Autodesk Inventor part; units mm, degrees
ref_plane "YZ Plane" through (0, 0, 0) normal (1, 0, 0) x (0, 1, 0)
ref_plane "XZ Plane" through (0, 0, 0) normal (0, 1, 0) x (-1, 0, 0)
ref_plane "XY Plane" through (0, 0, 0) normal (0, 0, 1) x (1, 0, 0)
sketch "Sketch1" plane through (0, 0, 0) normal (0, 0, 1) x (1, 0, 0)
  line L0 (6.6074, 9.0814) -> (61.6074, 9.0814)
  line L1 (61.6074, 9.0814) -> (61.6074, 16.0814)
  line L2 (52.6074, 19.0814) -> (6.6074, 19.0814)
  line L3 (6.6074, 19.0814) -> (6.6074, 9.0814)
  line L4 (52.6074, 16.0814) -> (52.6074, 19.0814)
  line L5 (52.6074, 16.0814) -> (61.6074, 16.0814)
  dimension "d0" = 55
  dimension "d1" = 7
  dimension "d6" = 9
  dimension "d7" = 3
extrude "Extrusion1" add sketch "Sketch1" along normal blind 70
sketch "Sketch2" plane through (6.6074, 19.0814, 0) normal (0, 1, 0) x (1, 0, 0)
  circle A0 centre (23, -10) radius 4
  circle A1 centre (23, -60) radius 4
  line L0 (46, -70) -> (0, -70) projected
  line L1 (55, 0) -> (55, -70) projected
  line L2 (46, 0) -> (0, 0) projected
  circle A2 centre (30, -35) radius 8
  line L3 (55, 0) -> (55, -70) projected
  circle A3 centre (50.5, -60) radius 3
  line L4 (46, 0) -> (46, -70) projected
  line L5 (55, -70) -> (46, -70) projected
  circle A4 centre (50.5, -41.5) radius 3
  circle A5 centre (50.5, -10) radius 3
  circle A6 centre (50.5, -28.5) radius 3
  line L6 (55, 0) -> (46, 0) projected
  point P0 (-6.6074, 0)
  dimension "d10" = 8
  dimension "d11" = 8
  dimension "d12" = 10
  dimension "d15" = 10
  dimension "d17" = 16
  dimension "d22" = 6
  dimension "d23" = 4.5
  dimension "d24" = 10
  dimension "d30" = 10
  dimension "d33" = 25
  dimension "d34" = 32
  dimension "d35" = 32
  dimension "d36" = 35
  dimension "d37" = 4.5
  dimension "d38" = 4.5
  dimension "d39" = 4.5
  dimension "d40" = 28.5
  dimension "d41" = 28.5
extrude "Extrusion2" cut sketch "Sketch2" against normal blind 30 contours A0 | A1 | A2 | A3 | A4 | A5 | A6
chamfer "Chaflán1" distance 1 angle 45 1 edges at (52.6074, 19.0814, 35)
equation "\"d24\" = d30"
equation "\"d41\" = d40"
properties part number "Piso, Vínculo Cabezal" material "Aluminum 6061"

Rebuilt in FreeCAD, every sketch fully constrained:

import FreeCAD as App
import Part
import Sketcher
Q = App.Units.Quantity


def edges_at(feature, points):
    """Names of the edges that pass closest to the given points."""
    edges = feature.Shape.Edges
    near = lambda p: min(range(len(edges)), key=lambda i: edges[i].distToShape(Part.Vertex(*p))[0])
    return sorted({f"Edge{near(p) + 1}" for p in points})

doc = App.newDocument("Part")
body = doc.addObject("PartDesign::Body", "Body")

# Sketch on XY plane
sketch1 = body.newObject("Sketcher::SketchObject", "Sketch")
sketch1.AttachmentSupport = (doc.getObject("XY_Plane"), [""])
sketch1.MapMode = "FlatFace"
sketch1.addGeometry([
    Part.LineSegment(App.Vector(6.6, 19.1, 0), App.Vector(6.6, 9.1, 0)),  # 0
    Part.LineSegment(App.Vector(6.6, 9.1, 0), App.Vector(61.6, 9.1, 0)),  # 1
    Part.LineSegment(App.Vector(61.6, 9.1, 0), App.Vector(61.6, 16.1, 0)),  # 2
    Part.LineSegment(App.Vector(61.6, 16.1, 0), App.Vector(52.6, 16.1, 0)),  # 3
    Part.LineSegment(App.Vector(52.6, 16.1, 0), App.Vector(52.6, 19.1, 0)),  # 4
    Part.LineSegment(App.Vector(52.6, 19.1, 0), App.Vector(6.6, 19.1, 0)),  # 5
], False)
sketch1.addConstraint([
    Sketcher.Constraint("Coincident", 0, 2, 1, 1),
    Sketcher.Constraint("Coincident", 1, 2, 2, 1),
    Sketcher.Constraint("Coincident", 2, 2, 3, 1),
    Sketcher.Constraint("Coincident", 3, 2, 4, 1),
    Sketcher.Constraint("Coincident", 4, 2, 5, 1),
    Sketcher.Constraint("Coincident", 5, 2, 0, 1),
    Sketcher.Constraint("Vertical", 0),
    Sketcher.Constraint("Horizontal", 1),
    Sketcher.Constraint("Vertical", 2),
    Sketcher.Constraint("Horizontal", 3),
    Sketcher.Constraint("Vertical", 4),
    Sketcher.Constraint("Horizontal", 5),
    Sketcher.Constraint("DistanceX", 1, 1, 1, 2, Q("55 mm")),
    Sketcher.Constraint("DistanceX", 3, 2, 3, 1, Q("9 mm")),
    Sketcher.Constraint("DistanceY", 2, 1, 2, 2, Q("7 mm")),
    Sketcher.Constraint("DistanceY", 4, 1, 4, 2, Q("3 mm")),
    Sketcher.Constraint("DistanceX", -1, 1, 0, 2, Q("6.6074 mm")),
    Sketcher.Constraint("DistanceY", -1, 1, 0, 2, Q("9.0814 mm")),
])
pad1 = body.newObject("PartDesign::Pad", "Pad")
pad1.Profile = sketch1
pad1.Length = 70

# Sketch on XZ plane
sketch2 = body.newObject("Sketcher::SketchObject", "Sketch001")
sketch2.AttachmentSupport = (doc.getObject("XZ_Plane"), [""])
sketch2.MapMode = "FlatFace"
sketch2.AttachmentOffset = App.Placement(App.Vector(0, 0, -19.0814), App.Rotation())
sketch2.addGeometry([
    Part.Circle(App.Vector(29.6, 10, 0), App.Vector(0, 0, 1), 4),  # 0
    Part.Circle(App.Vector(29.6, 60, 0), App.Vector(0, 0, 1), 4),  # 1
    Part.Circle(App.Vector(36.6, 35, 0), App.Vector(0, 0, 1), 8),  # 2
    Part.Circle(App.Vector(57.1, 60, 0), App.Vector(0, 0, 1), 3),  # 3
    Part.Circle(App.Vector(57.1, 41.5, 0), App.Vector(0, 0, 1), 3),  # 4
    Part.Circle(App.Vector(57.1, 10, 0), App.Vector(0, 0, 1), 3),  # 5
    Part.Circle(App.Vector(57.1, 28.5, 0), App.Vector(0, 0, 1), 3),  # 6
], False)
sketch2.addConstraint([
    Sketcher.Constraint("Equal", 0, 1),
    Sketcher.Constraint("Equal", 3, 4),
    Sketcher.Constraint("Equal", 4, 5),
    Sketcher.Constraint("Equal", 5, 6),
    Sketcher.Constraint("Horizontal", 1, 3, 3, 3),
    Sketcher.Constraint("Horizontal", 0, 3, 5, 3),
    Sketcher.Constraint("Vertical", 0, 3, 1, 3),
    Sketcher.Constraint("Vertical", 3, 3, 4, 3),
    Sketcher.Constraint("Vertical", 4, 3, 5, 3),
    Sketcher.Constraint("Vertical", 5, 3, 6, 3),
    Sketcher.Constraint("Diameter", 0, Q("8 mm")),
    Sketcher.Constraint("Diameter", 2, Q("16 mm")),
    Sketcher.Constraint("Diameter", 3, Q("6 mm")),
    Sketcher.Constraint("DistanceY", -1, 1, 0, 3, Q("10 mm")),
    Sketcher.Constraint("DistanceY", -1, 1, 2, 3, Q("35 mm")),
    Sketcher.Constraint("DistanceY", 2, 3, 1, 3, Q("25 mm")),
    Sketcher.Constraint("DistanceY", -1, 1, 6, 3, Q("28.5 mm")),
    Sketcher.Constraint("DistanceX", 0, 3, 2, 3, Q("7 mm")),
    Sketcher.Constraint("DistanceY", 6, 3, 4, 3, Q("13 mm")),
    Sketcher.Constraint("DistanceX", 1, 3, 3, 3, Q("27.5 mm")),
    Sketcher.Constraint("DistanceX", -1, 1, 0, 3, Q("29.6074 mm")),
])
pocket1 = body.newObject("PartDesign::Pocket", "Pocket")
pocket1.Profile = sketch2
pocket1.Length = 30
pocket1.Reversed = True
doc.recompute()

chamfer = body.newObject("PartDesign::Chamfer", "Chamfer")
chamfer.Base = (pocket1, edges_at(pocket1, [(52.607, 19.081, 35)]))
chamfer.Size = 1

doc.recompute()
